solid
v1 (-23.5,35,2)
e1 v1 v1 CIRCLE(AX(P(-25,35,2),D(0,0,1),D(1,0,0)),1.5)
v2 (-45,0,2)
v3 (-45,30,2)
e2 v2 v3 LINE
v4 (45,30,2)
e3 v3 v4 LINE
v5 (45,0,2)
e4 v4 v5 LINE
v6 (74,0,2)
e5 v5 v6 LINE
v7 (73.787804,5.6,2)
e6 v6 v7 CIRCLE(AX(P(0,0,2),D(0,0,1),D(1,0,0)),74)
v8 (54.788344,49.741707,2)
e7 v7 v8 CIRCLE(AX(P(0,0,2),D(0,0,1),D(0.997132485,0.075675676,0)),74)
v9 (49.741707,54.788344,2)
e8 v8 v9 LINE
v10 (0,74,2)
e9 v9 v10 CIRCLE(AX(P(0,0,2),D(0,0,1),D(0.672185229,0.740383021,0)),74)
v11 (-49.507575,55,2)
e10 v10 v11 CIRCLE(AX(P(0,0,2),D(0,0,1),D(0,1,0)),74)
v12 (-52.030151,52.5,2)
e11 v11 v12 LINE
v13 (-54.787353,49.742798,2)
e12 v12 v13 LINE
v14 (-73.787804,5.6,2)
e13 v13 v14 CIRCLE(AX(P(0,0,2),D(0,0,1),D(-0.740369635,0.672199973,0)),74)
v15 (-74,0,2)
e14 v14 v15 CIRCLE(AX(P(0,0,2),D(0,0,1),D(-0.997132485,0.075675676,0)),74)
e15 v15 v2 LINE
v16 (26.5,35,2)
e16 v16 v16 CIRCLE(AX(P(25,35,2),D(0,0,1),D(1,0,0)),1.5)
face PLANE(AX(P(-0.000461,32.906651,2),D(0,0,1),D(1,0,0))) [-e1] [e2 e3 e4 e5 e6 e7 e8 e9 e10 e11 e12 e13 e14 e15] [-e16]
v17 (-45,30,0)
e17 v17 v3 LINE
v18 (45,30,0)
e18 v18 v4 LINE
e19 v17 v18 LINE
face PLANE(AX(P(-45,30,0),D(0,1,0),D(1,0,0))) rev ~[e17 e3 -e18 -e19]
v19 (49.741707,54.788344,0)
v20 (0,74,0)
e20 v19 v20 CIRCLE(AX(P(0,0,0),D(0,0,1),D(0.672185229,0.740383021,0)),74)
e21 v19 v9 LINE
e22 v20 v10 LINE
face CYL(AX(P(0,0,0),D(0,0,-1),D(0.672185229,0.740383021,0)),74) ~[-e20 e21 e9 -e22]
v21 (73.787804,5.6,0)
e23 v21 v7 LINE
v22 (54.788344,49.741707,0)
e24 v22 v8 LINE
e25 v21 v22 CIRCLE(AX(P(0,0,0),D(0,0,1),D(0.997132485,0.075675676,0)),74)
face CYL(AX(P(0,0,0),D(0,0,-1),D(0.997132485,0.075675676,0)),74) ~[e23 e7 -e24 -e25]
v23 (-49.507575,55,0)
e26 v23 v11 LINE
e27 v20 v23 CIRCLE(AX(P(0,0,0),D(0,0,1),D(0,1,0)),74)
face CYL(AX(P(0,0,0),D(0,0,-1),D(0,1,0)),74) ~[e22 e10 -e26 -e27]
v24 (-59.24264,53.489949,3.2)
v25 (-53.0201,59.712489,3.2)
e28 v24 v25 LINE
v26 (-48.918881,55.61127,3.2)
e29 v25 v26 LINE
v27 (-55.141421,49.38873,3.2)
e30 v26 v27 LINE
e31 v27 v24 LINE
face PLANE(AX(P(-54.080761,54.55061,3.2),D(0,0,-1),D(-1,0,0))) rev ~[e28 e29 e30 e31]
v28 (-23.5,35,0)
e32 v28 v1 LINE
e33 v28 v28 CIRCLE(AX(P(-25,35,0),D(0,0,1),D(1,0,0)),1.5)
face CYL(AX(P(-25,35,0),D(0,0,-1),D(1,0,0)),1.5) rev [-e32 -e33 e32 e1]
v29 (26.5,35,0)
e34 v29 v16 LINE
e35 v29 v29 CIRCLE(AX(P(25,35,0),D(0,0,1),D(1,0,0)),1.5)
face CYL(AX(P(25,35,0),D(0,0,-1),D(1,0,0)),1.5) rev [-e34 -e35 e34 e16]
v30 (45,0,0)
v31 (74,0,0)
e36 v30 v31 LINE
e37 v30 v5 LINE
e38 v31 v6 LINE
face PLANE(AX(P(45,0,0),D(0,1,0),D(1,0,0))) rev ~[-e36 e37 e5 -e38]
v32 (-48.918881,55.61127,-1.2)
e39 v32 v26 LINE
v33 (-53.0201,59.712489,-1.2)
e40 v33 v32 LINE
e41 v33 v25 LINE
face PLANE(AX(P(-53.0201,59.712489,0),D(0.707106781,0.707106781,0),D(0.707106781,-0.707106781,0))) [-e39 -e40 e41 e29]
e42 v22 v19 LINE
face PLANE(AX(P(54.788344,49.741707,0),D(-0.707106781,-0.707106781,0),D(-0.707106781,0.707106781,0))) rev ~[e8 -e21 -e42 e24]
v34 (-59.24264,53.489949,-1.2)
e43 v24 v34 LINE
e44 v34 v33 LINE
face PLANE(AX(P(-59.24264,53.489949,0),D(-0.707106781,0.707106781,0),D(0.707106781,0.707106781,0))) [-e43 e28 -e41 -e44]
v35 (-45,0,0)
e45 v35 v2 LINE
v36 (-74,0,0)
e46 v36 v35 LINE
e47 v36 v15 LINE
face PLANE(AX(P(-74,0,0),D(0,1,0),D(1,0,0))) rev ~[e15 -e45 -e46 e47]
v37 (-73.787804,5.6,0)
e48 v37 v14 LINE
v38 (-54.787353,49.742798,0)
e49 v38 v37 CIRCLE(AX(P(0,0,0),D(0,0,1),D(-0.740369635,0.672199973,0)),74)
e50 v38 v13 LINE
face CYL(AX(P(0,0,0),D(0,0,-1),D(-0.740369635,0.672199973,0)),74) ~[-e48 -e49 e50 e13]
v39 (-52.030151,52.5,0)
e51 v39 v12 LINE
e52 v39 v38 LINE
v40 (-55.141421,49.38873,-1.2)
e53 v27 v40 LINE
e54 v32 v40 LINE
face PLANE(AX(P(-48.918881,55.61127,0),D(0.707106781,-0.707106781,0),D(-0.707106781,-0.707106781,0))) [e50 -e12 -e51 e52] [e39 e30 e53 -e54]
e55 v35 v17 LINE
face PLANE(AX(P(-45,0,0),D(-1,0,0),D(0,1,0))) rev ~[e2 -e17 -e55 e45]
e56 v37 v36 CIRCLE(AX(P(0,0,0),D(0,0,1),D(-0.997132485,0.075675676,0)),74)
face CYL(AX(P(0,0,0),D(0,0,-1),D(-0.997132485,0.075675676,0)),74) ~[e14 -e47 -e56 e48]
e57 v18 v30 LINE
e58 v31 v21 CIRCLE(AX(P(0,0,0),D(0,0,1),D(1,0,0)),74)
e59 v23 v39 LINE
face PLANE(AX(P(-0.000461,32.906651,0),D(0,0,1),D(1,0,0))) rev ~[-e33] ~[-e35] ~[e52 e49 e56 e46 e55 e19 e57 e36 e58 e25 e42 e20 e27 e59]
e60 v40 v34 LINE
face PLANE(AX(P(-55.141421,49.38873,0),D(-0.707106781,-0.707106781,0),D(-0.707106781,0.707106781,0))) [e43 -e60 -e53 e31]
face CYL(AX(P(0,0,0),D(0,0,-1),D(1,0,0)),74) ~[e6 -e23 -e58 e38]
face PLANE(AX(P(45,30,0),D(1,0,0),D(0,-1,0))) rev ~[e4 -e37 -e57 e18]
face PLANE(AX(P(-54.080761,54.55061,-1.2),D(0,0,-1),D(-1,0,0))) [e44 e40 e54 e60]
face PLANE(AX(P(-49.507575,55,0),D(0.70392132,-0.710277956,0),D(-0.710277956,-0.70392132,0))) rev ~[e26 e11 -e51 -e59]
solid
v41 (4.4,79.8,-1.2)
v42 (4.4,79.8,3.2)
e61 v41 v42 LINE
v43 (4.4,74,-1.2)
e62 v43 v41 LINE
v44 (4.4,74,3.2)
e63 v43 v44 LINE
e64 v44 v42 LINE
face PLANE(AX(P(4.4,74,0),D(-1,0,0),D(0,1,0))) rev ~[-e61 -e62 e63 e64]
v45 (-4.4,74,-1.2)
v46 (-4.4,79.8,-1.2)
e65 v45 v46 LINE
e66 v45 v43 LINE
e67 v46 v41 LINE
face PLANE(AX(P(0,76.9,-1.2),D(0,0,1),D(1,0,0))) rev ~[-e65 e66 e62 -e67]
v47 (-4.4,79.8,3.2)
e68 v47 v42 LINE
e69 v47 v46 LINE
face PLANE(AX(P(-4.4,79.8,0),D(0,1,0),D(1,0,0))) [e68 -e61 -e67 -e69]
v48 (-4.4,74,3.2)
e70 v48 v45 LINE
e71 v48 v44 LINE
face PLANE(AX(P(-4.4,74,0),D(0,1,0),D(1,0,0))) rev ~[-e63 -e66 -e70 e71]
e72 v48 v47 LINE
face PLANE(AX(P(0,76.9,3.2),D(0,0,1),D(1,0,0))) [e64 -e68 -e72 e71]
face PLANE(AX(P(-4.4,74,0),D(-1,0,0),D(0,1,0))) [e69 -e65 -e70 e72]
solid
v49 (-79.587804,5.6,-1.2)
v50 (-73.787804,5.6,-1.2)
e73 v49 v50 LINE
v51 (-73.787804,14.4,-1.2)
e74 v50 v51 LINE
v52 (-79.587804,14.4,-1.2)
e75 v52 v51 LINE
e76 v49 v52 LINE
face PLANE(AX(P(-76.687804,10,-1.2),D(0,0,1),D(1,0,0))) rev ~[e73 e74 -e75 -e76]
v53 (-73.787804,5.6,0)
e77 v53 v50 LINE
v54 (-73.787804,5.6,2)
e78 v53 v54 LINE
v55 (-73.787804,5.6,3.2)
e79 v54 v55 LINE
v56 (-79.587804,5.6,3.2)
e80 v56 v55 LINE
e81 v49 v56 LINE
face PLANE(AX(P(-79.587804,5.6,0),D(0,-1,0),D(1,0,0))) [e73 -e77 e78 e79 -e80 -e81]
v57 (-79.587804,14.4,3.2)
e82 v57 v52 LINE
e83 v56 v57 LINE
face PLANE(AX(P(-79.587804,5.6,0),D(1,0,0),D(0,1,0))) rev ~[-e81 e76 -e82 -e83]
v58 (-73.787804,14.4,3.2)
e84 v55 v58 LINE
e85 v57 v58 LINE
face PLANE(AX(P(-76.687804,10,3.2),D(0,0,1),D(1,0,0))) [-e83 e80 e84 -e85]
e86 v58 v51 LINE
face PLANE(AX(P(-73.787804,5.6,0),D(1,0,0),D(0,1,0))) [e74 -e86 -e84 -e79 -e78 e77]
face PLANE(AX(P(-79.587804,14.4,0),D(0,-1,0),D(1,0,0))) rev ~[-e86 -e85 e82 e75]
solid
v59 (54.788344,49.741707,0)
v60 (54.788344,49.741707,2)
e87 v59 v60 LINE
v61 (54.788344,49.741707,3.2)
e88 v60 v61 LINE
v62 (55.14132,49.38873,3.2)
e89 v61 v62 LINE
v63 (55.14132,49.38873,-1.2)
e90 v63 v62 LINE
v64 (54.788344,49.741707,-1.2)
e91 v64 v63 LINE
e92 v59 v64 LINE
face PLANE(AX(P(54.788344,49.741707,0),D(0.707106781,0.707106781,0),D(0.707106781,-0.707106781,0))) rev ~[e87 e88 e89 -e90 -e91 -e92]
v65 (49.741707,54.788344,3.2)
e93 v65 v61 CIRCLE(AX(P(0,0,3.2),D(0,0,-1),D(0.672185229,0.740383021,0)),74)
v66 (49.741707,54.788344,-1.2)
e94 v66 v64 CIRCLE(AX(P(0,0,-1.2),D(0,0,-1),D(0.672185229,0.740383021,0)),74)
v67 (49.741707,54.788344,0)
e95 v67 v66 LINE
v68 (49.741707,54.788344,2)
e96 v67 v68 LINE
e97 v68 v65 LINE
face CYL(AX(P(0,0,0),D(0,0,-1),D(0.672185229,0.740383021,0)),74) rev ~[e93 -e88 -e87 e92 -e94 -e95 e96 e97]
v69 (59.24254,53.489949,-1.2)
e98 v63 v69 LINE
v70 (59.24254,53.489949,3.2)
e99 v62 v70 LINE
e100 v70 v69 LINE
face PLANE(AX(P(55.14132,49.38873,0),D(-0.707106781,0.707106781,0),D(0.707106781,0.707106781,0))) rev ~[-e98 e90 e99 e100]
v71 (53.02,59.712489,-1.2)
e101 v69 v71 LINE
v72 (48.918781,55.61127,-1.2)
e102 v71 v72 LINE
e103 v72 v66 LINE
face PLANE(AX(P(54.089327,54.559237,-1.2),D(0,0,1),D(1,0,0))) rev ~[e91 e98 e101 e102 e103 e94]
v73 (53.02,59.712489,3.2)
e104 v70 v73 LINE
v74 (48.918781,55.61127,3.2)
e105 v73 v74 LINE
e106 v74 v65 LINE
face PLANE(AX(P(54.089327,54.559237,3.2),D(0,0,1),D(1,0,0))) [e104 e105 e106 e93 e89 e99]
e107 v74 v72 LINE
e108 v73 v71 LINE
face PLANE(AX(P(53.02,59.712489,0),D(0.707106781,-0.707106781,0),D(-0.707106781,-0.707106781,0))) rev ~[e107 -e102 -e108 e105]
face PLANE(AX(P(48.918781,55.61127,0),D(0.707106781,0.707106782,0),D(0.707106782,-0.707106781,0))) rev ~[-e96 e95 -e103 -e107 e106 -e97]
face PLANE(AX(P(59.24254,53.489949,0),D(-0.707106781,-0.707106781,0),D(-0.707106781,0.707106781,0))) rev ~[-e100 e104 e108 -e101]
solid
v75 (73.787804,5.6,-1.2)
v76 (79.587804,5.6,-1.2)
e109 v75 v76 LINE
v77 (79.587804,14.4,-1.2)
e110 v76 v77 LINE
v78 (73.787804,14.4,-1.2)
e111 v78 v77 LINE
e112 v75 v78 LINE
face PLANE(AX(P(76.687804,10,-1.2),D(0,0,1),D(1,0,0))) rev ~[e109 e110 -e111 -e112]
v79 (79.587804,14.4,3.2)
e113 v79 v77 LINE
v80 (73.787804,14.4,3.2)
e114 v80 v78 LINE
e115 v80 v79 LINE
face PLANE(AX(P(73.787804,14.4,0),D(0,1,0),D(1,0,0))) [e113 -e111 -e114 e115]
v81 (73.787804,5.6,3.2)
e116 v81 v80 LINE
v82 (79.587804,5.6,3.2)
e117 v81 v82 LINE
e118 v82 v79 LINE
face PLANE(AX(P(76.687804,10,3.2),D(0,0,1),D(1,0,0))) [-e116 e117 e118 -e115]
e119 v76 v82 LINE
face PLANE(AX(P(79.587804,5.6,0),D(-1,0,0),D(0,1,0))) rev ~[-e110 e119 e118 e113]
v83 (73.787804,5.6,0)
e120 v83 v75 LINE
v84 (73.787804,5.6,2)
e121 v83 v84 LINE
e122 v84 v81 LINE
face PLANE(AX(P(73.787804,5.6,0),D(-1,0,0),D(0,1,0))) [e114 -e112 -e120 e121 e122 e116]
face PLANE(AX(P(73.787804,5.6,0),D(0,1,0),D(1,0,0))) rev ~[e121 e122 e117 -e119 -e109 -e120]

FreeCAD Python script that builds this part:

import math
import FreeCAD as App
import Part
import Sketcher
Q = App.Units.Quantity


def add_polygon(sketch, points):
    """Adds a closed chain of lines whose ends are joined by coincident constraints."""
    first, n = sketch.GeometryCount, len(points)
    for a, b in zip(points, points[1:] + points[:1]):
        sketch.addGeometry(Part.LineSegment(App.Vector(*a, 0), App.Vector(*b, 0)), False)
    for i in range(n):
        sketch.addConstraint(Sketcher.Constraint("Coincident", first + i, 2, first + (i + 1) % n, 1))

doc = App.newDocument("Part")
body = doc.addObject("PartDesign::Body", "Body")
body.AllowCompound = True

# Sketch on XY plane
sketch1 = body.newObject("Sketcher::SketchObject", "Sketch")
sketch1.AttachmentSupport = (doc.getObject("XY_Plane"), [""])
sketch1.MapMode = "FlatFace"
sketch1.addGeometry([
    Part.ArcOfCircle(Part.Circle(App.Vector(0, 0, 0), App.Vector(0, 0, 1), 74), math.radians(175.66), math.radians(180)),  # 0
    Part.LineSegment(App.Vector(-74, 0, 0), App.Vector(-45, 0, 0)),  # 1
    Part.LineSegment(App.Vector(-45, 0, 0), App.Vector(-45, 30, 0)),  # 2
    Part.LineSegment(App.Vector(-45, 30, 0), App.Vector(45, 30, 0)),  # 3
    Part.LineSegment(App.Vector(45, 30, 0), App.Vector(45, 0, 0)),  # 4
    Part.LineSegment(App.Vector(45, 0, 0), App.Vector(74, 0, 0)),  # 5
    Part.ArcOfCircle(Part.Circle(App.Vector(0, 0, 0), App.Vector(0, 0, 1), 74), math.radians(0), math.radians(4.34)),  # 6
    Part.ArcOfCircle(Part.Circle(App.Vector(0, 0, 0), App.Vector(0, 0, 1), 74), math.radians(4), math.radians(42)),  # 7
    Part.LineSegment(App.Vector(54.8, 49.7, 0), App.Vector(49.7, 54.8, 0)),  # 8
    Part.ArcOfCircle(Part.Circle(App.Vector(0, 0, 0), App.Vector(0, 0, 1), 74), math.radians(48), math.radians(90)),  # 9
    Part.ArcOfCircle(Part.Circle(App.Vector(0, 0, 0), App.Vector(0, 0, 1), 74), math.radians(90), math.radians(132)),  # 10
    Part.LineSegment(App.Vector(-49.5, 55, 0), App.Vector(-52, 52.5, 0)),  # 11
    Part.LineSegment(App.Vector(-52, 52.5, 0), App.Vector(-54.8, 49.7, 0)),  # 12
    Part.ArcOfCircle(Part.Circle(App.Vector(0, 0, 0), App.Vector(0, 0, 1), 74), math.radians(138), math.radians(176)),  # 13
    Part.Circle(App.Vector(-25, 35, 0), App.Vector(0, 0, 1), 1.5),  # 14
    Part.Circle(App.Vector(25, 35, 0), App.Vector(0, 0, 1), 1.5),  # 15
], False)
sketch1.addConstraint([
    Sketcher.Constraint("Coincident", 0, 2, 1, 1),
    Sketcher.Constraint("Coincident", 1, 2, 2, 1),
    Sketcher.Constraint("Coincident", 2, 2, 3, 1),
    Sketcher.Constraint("Coincident", 3, 2, 4, 1),
    Sketcher.Constraint("Coincident", 4, 2, 5, 1),
    Sketcher.Constraint("Coincident", 5, 2, 6, 1),
    Sketcher.Constraint("Tangent", 6, 2, 7, 1),
    Sketcher.Constraint("Coincident", 7, 2, 8, 1),
    Sketcher.Constraint("Coincident", 8, 2, 9, 1),
    Sketcher.Constraint("Tangent", 9, 2, 10, 1),
    Sketcher.Constraint("Coincident", 10, 2, 11, 1),
    Sketcher.Constraint("Coincident", 11, 2, 12, 1),
    Sketcher.Constraint("Coincident", 12, 2, 13, 1),
    Sketcher.Constraint("Tangent", 13, 2, 0, 1),
    Sketcher.Constraint("Horizontal", 1),
    Sketcher.Constraint("Vertical", 2),
    Sketcher.Constraint("Horizontal", 3),
    Sketcher.Constraint("Vertical", 4),
    Sketcher.Constraint("Horizontal", 5),
    Sketcher.Constraint("Coincident", 0, 3, -1, 1),
    Sketcher.Constraint("Coincident", 6, 3, -1, 1),
    Sketcher.Constraint("Coincident", 9, 3, -1, 1),
    Sketcher.Constraint("Equal", 0, 6),
    Sketcher.Constraint("Equal", 6, 7),
    Sketcher.Constraint("Equal", 7, 9),
    Sketcher.Constraint("Equal", 9, 10),
    Sketcher.Constraint("Equal", 10, 13),
    Sketcher.Constraint("Equal", 14, 15),
    Sketcher.Constraint("Symmetric", 1, 2, 4, 2, -1, 1),
    Sketcher.Constraint("Symmetric", 14, 3, 15, 3, -2),
    Sketcher.Constraint("PointOnObject", 0, 2, -1),
    Sketcher.Constraint("PointOnObject", 9, 2, -2),
    Sketcher.Constraint("Perpendicular", 8, 12),
    Sketcher.Constraint("Horizontal", 6, 2, 13, 2),
    Sketcher.Constraint("Diameter", 14, Q("3 mm")),
    Sketcher.Constraint("Radius", 0, Q("74 mm")),
    Sketcher.Constraint("DistanceX", 1, 1, 1, 2, Q("29 mm")),
    Sketcher.Constraint("DistanceY", 2, 1, 2, 2, Q("30 mm")),
    Sketcher.Constraint("Angle", 8, Q("135 deg")),
    Sketcher.Constraint("DistanceX", 14, 3, -1, 1, Q("25 mm")),
    Sketcher.Constraint("DistanceY", -1, 1, 14, 3, Q("35 mm")),
    Sketcher.Constraint("DistanceY", -1, 1, 10, 2, Q("55 mm")),
    Sketcher.Constraint("DistanceY", -1, 1, 6, 2, Q("5.6 mm")),
    Sketcher.Constraint("DistanceY", -1, 1, 11, 2, Q("52.5 mm")),
    Sketcher.Constraint("Distance", 8, Q("7.137022 mm")),
    Sketcher.Constraint("DistanceX", 11, 2, -1, 1, Q("52.030151 mm")),
])
pad1 = body.newObject("PartDesign::Pad", "Pad")
pad1.Profile = sketch1
pad1.Length = 2

# Sketch on XY plane
sketch2 = body.newObject("Sketcher::SketchObject", "Sketch001")
sketch2.AttachmentSupport = (doc.getObject("XY_Plane"), [""])
sketch2.MapMode = "FlatFace"
add_polygon(sketch2, [(-79.59, 14.4), (-79.59, 5.6), (-73.79, 5.6), (-73.79, 14.4)])  # lines 0-3
sketch2.addGeometry(Part.LineSegment(App.Vector(48.92, 55.61, 0), App.Vector(49.74, 54.79, 0)), False)  # 4
sketch2.addGeometry(Part.ArcOfCircle(Part.Circle(App.Vector(0, 0, 0), App.Vector(0, 0, 1), 74), math.radians(42.24), math.radians(47.76)), False)  # 5
sketch2.addGeometry(Part.LineSegment(App.Vector(54.79, 49.74, 0), App.Vector(55.14, 49.39, 0)), False)  # 6
sketch2.addGeometry(Part.LineSegment(App.Vector(55.14, 49.39, 0), App.Vector(59.24, 53.49, 0)), False)  # 7
sketch2.addGeometry(Part.LineSegment(App.Vector(59.24, 53.49, 0), App.Vector(53.02, 59.71, 0)), False)  # 8
sketch2.addGeometry(Part.LineSegment(App.Vector(53.02, 59.71, 0), App.Vector(48.92, 55.61, 0)), False)  # 9
add_polygon(sketch2, [(73.79, 14.4), (73.79, 5.6), (79.59, 5.6), (79.59, 14.4)])  # lines 10-13
add_polygon(sketch2, [(-48.92, 55.61), (-53.02, 59.71), (-59.24, 53.49), (-55.14, 49.39)])  # lines 14-17
add_polygon(sketch2, [(-4.4, 79.8), (-4.4, 74), (4.4, 74), (4.4, 79.8)])  # lines 18-21
sketch2.addConstraint([
    Sketcher.Constraint("Coincident", 4, 2, 5, 2),
    Sketcher.Constraint("Coincident", 5, 1, 6, 1),
    Sketcher.Constraint("Coincident", 6, 2, 7, 1),
    Sketcher.Constraint("Coincident", 7, 2, 8, 1),
    Sketcher.Constraint("Coincident", 8, 2, 9, 1),
    Sketcher.Constraint("Coincident", 9, 2, 4, 1),
    Sketcher.Constraint("Vertical", 0),
    Sketcher.Constraint("Horizontal", 1),
    Sketcher.Constraint("Vertical", 2),
    Sketcher.Constraint("Horizontal", 3),
    Sketcher.Constraint("Vertical", 10),
    Sketcher.Constraint("Horizontal", 11),
    Sketcher.Constraint("Vertical", 12),
    Sketcher.Constraint("Horizontal", 13),
    Sketcher.Constraint("Vertical", 18),
    Sketcher.Constraint("Horizontal", 19),
    Sketcher.Constraint("Vertical", 20),
    Sketcher.Constraint("Horizontal", 21),
    Sketcher.Constraint("Coincident", 5, 3, -1, 1),
    Sketcher.Constraint("Symmetric", 1, 2, 10, 2, -2),
    Sketcher.Constraint("Symmetric", 3, 2, 12, 2, -2),
    Sketcher.Constraint("Parallel", 4, 6),
    Sketcher.Constraint("Perpendicular", 6, 7),
    Sketcher.Constraint("Perpendicular", 7, 8),
    Sketcher.Constraint("Perpendicular", 8, 9),
    Sketcher.Constraint("Perpendicular", 9, 14),
    Sketcher.Constraint("Perpendicular", 14, 15),
    Sketcher.Constraint("Perpendicular", 15, 16),
    Sketcher.Constraint("Perpendicular", 16, 17),
    Sketcher.Constraint("Horizontal", 8, 2, 14, 2),
    Sketcher.Constraint("Horizontal", 7, 2, 15, 2),
    Sketcher.Constraint("Horizontal", 6, 2, 16, 2),
    Sketcher.Constraint("Horizontal", 9, 2, 17, 2),
    Sketcher.Constraint("Equal", 21, 0),
    Sketcher.Constraint("Equal", 13, 18),
    Sketcher.Constraint("Equal", 9, 14),
    Sketcher.Constraint("Radius", 5, Q("74 mm")),
    Sketcher.Constraint("DistanceX", 1, 1, 1, 2, Q("5.8 mm")),
    Sketcher.Constraint("DistanceX", 19, 1, 19, 2, Q("8.8 mm")),
    Sketcher.Constraint("DistanceY", -1, 1, 18, 2, Q("74 mm")),
    Sketcher.Constraint("Distance", 7, Q("5.8 mm")),
    Sketcher.Constraint("Distance", 8, Q("8.8 mm")),
    Sketcher.Constraint("DistanceY", -1, 1, 0, 2, Q("5.6 mm")),
    Sketcher.Constraint("DistanceX", 18, 2, -1, 1, Q("4.4 mm")),
    Sketcher.Constraint("DistanceX", -1, 1, 8, 2, Q("53.02 mm")),
    Sketcher.Constraint("DistanceX", 14, 2, -1, 1, Q("53.0201 mm")),
    Sketcher.Constraint("DistanceY", -1, 1, 6, 2, Q("49.38873 mm")),
    Sketcher.Constraint("DistanceX", 2, 2, 4, 2, Q("123.529511 mm")),
])
pad2 = body.newObject("PartDesign::Pad", "Pad001")
pad2.Profile = sketch2
pad2.Type = "TwoLengths"
pad2.Length = 3.2
pad2.Length2 = 1.2

doc.recompute()
